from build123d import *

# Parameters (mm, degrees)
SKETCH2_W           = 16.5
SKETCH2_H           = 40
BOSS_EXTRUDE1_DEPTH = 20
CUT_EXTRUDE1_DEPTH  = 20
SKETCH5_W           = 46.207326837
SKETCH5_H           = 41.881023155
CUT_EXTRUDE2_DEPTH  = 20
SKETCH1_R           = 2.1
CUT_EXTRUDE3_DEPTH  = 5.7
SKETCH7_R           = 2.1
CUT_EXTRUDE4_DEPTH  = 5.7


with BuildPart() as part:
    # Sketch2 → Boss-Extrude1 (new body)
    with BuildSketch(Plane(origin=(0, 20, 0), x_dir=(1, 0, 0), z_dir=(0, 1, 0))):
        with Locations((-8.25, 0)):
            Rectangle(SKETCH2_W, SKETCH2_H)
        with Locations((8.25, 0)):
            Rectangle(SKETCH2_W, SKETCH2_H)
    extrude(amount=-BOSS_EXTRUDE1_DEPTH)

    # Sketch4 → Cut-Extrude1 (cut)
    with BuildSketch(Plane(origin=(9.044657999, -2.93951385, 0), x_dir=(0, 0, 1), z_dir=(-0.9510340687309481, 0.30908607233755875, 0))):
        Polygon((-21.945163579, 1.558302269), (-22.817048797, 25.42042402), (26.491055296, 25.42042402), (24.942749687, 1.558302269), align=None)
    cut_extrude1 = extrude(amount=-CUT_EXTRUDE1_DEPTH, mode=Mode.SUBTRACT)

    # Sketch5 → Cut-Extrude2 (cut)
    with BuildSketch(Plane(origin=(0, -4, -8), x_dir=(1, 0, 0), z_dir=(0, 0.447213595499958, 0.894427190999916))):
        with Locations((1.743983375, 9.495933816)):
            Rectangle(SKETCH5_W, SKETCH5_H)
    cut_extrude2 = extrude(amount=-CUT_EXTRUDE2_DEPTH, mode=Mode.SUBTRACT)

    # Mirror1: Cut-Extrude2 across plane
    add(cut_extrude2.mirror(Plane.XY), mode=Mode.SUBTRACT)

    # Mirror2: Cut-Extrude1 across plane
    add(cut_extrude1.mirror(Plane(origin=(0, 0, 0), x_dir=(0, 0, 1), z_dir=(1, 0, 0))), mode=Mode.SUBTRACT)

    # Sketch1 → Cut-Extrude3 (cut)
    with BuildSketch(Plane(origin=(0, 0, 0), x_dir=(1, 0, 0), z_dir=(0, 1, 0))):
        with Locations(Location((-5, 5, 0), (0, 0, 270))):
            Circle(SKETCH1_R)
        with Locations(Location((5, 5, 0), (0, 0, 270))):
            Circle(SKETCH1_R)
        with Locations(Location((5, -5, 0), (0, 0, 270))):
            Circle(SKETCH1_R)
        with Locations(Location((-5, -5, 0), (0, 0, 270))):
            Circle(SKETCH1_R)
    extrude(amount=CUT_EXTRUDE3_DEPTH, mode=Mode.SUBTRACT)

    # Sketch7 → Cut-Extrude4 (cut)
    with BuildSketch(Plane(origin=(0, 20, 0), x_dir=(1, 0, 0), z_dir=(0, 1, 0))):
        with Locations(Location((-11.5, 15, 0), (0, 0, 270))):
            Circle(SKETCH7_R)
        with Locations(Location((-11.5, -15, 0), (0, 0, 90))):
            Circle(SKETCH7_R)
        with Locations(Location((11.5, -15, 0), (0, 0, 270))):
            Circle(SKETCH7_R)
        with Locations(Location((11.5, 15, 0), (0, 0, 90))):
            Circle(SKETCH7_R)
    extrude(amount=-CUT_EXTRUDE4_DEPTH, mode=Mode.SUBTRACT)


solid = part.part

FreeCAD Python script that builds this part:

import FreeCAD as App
import Part
import Sketcher

V = App.Vector
Q = App.Units.Quantity


def add_polygon(sketch, points):
    """Adds a closed chain of lines whose ends are joined by coincident constraints."""
    first, n = sketch.GeometryCount, len(points)
    for a, b in zip(points, points[1:] + points[:1]):
        sketch.addGeometry(Part.LineSegment(App.Vector(*a, 0), App.Vector(*b, 0)), False)
    for i in range(n):
        sketch.addConstraint(Sketcher.Constraint("Coincident", first + i, 2, first + (i + 1) % n, 1))

doc = App.newDocument("Part")
body = doc.addObject("PartDesign::Body", "Body")

sketch1 = body.newObject("Sketcher::SketchObject", "Sketch")
sketch1.AttachmentSupport = (doc.getObject("XZ_Plane"), [""])
sketch1.MapMode = "FlatFace"
sketch1.AttachmentOffset = App.Placement(V(0, 0, -20), App.Rotation())
add_polygon(sketch1, [(-16, -20), (-16, 20), (16, 20), (16, -20)])
sketch1.addConstraint([
    Sketcher.Constraint("Vertical", 0),
    Sketcher.Constraint("Horizontal", 1),
    Sketcher.Constraint("Vertical", 2),
    Sketcher.Constraint("Horizontal", 3),
    Sketcher.Constraint("Symmetric", 0, 2, 2, 2, -1, 1),
    Sketcher.Constraint("DistanceX", 1, 1, 1, 2, Q("33 mm")),
    Sketcher.Constraint("DistanceY", 0, 1, 0, 2, Q("40 mm")),
])
pad1 = body.newObject("PartDesign::Pad", "Pad")
pad1.Profile = sketch1
pad1.Length = 20

sketch2 = body.newObject("Sketcher::SketchObject", "Sketch001")
sketch2.Placement = App.Placement(V(9.044658, -2.939514, 0), App.Rotation(V(0, 0, 1), V(0.309086072, 0.951034069, 0), V(-0.951034069, 0.309086072, 0), "ZXY"))
add_polygon(sketch2, [(-23, 25), (-22, 2), (25, 2), (26, 25)])
sketch2.addConstraint([
    Sketcher.Constraint("Horizontal", 1),
    Sketcher.Constraint("Horizontal", 3),
    Sketcher.Constraint("Distance", 2, Q("23.9123 mm")),
    Sketcher.Constraint("DistanceX", 3, 2, 1, 2, Q("47.759798 mm")),
    Sketcher.Constraint("DistanceX", 1, 1, 1, 2, Q("46.887913 mm")),
    Sketcher.Constraint("DistanceX", 3, 2, 3, 1, Q("49.308104 mm")),
    Sketcher.Constraint("DistanceX", -1, 1, 1, 2, Q("24.94275 mm")),
    Sketcher.Constraint("DistanceY", -1, 1, 0, 2, Q("1.558302 mm")),
])
pocket1 = body.newObject("PartDesign::Pocket", "Pocket")
pocket1.Profile = sketch2
pocket1.Length = 20

sketch3 = body.newObject("Sketcher::SketchObject", "Sketch002")
sketch3.Placement = App.Placement(V(0, -4, -8), App.Rotation(V(1, 0, 0), V(0, 0.894427191, -0.447213595), V(0, 0.447213595, 0.894427191), "ZXY"))
add_polygon(sketch3, [(-21, 30), (-21, -11), (25, -11), (25, 30)])
sketch3.addConstraint([
    Sketcher.Constraint("Vertical", 0),
    Sketcher.Constraint("Horizontal", 1),
    Sketcher.Constraint("Vertical", 2),
    Sketcher.Constraint("Horizontal", 3),
    Sketcher.Constraint("DistanceX", 1, 1, 1, 2, Q("46.207327 mm")),
    Sketcher.Constraint("DistanceY", 0, 2, 0, 1, Q("41.881023 mm")),
    Sketcher.Constraint("DistanceX", 0, 2, -1, 1, Q("21.35968 mm")),
    Sketcher.Constraint("DistanceY", 0, 2, -1, 1, Q("11.444578 mm")),
])
pocket2 = body.newObject("PartDesign::Pocket", "Pocket001")
pocket2.Profile = sketch3
pocket2.Length = 20
doc.recompute()

mirrored = body.newObject("PartDesign::Mirrored", "Mirrored")
mirrored.Originals = [pocket2]
mirrored.MirrorPlane = (doc.getObject("XY_Plane"), [""])
body.Tip = mirrored
doc.recompute()

mirrored2 = body.newObject("PartDesign::Mirrored", "Mirrored001")
mirrored2.Originals = [pocket1]
mirrored2.MirrorPlane = (doc.getObject("YZ_Plane"), [""])
body.Tip = mirrored2

sketch4 = body.newObject("Sketcher::SketchObject", "Sketch003")
sketch4.AttachmentSupport = (doc.getObject("XZ_Plane"), [""])
sketch4.MapMode = "FlatFace"
sketch4.addGeometry([
    Part.Circle(V(-5, -5, 0), V(0, 0, 1), 2.1),
    Part.Circle(V(5, -5, 0), V(0, 0, 1), 2.1),
    Part.Circle(V(5, 5, 0), V(0, 0, 1), 2.1),
    Part.Circle(V(-5, 5, 0), V(0, 0, 1), 2.1),
], False)
sketch4.addConstraint([
    Sketcher.Constraint("Equal", 0, 1),
    Sketcher.Constraint("Equal", 1, 2),
    Sketcher.Constraint("Equal", 2, 3),
    Sketcher.Constraint("Symmetric", 0, 3, 2, 3, -1, 1),
    Sketcher.Constraint("Symmetric", 1, 3, 3, 3, -1, 1),
    Sketcher.Constraint("Symmetric", 0, 3, 1, 3, -2),
    Sketcher.Constraint("Diameter", 0, Q("4.2 mm")),
    Sketcher.Constraint("DistanceX", 0, 3, -1, 1, Q("5 mm")),
    Sketcher.Constraint("DistanceY", 0, 3, -1, 1, Q("5 mm")),
])
pocket3 = body.newObject("PartDesign::Pocket", "Pocket002")
pocket3.Profile = sketch4
pocket3.Length = 5.7

sketch5 = body.newObject("Sketcher::SketchObject", "Sketch004")
sketch5.AttachmentSupport = (doc.getObject("XZ_Plane"), [""])
sketch5.MapMode = "FlatFace"
sketch5.AttachmentOffset = App.Placement(V(0, 0, -20), App.Rotation())
sketch5.addGeometry([
    Part.Circle(V(-11.5, -15, 0), V(0, 0, 1), 2.1),
    Part.Circle(V(-11.5, 15, 0), V(0, 0, 1), 2.1),
    Part.Circle(V(11.5, 15, 0), V(0, 0, 1), 2.1),
    Part.Circle(V(11.5, -15, 0), V(0, 0, 1), 2.1),
], False)
sketch5.addConstraint([
    Sketcher.Constraint("Equal", 0, 1),
    Sketcher.Constraint("Equal", 1, 2),
    Sketcher.Constraint("Equal", 2, 3),
    Sketcher.Constraint("Symmetric", 0, 3, 2, 3, -1, 1),
    Sketcher.Constraint("Symmetric", 1, 3, 3, 3, -1, 1),
    Sketcher.Constraint("Symmetric", 1, 3, 2, 3, -2),
    Sketcher.Constraint("Diameter", 0, Q("4.2 mm")),
    Sketcher.Constraint("DistanceY", 0, 3, -1, 1, Q("15 mm")),
    Sketcher.Constraint("DistanceX", 1, 3, 2, 3, Q("23 mm")),
])
pocket4 = body.newObject("PartDesign::Pocket", "Pocket003")
pocket4.Profile = sketch5
pocket4.Length = 5.7
pocket4.Reversed = True

doc.recompute()
